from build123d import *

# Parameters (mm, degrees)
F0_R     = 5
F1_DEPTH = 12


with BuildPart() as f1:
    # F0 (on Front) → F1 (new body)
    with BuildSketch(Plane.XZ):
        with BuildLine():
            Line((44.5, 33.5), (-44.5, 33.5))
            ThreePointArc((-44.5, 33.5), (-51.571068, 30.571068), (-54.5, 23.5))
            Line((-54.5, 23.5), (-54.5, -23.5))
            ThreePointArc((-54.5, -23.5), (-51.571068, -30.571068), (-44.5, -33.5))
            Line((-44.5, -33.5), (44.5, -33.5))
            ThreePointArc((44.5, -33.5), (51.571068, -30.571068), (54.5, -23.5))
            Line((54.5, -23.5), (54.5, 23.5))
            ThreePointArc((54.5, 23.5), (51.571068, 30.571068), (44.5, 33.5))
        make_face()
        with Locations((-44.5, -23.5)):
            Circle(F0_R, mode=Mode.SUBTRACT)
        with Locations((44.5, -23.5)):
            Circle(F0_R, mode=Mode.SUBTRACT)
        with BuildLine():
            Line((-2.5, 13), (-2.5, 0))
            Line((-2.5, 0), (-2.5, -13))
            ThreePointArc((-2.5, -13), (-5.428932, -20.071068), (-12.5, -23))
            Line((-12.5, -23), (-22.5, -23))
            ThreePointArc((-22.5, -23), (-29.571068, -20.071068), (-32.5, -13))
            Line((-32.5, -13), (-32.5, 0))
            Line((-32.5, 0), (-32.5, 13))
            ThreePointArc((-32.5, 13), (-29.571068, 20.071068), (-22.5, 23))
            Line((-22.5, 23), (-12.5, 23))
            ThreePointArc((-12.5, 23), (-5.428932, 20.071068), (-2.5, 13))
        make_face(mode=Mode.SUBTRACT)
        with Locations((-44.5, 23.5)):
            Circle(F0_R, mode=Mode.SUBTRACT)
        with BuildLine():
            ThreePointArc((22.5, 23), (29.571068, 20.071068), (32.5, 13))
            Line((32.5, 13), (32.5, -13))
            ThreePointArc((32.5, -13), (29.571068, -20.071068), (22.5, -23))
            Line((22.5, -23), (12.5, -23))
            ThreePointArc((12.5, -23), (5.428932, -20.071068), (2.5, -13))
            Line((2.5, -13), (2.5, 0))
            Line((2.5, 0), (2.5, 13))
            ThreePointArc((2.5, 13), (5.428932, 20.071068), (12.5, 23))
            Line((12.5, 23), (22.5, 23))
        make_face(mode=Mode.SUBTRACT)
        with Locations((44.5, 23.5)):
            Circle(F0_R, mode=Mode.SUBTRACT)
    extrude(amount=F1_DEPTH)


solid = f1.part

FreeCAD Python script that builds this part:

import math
import FreeCAD as App
import Part
import Sketcher
Q = App.Units.Quantity

doc = App.newDocument("Part")
body = doc.addObject("PartDesign::Body", "Body")

sketch1 = body.newObject("Sketcher::SketchObject", "Sketch")
sketch1.AttachmentSupport = (doc.getObject("XZ_Plane"), [""])
sketch1.MapMode = "FlatFace"
sketch1.addGeometry([
    Part.LineSegment(App.Vector(44, 34, 0), App.Vector(-44, 34, 0)),
    Part.ArcOfCircle(Part.Circle(App.Vector(-45, 24, 0), App.Vector(0, 0, 1), 10), math.radians(90), math.radians(180)),
    Part.LineSegment(App.Vector(-54, 24, 0), App.Vector(-54, -24, 0)),
    Part.ArcOfCircle(Part.Circle(App.Vector(-45, -24, 0), App.Vector(0, 0, 1), 10), math.radians(180), math.radians(270)),
    Part.LineSegment(App.Vector(-44, -34, 0), App.Vector(44, -34, 0)),
    Part.ArcOfCircle(Part.Circle(App.Vector(45, -24, 0), App.Vector(0, 0, 1), 10), math.radians(-90), math.radians(0)),
    Part.LineSegment(App.Vector(54, -24, 0), App.Vector(54, 24, 0)),
    Part.ArcOfCircle(Part.Circle(App.Vector(45, 24, 0), App.Vector(0, 0, 1), 10), math.radians(0), math.radians(90)),
    Part.Circle(App.Vector(-44, -24, 0), App.Vector(0, 0, 1), 5),
    Part.Circle(App.Vector(44, -24, 0), App.Vector(0, 0, 1), 5),
    Part.ArcOfCircle(Part.Circle(App.Vector(-12, 13, 0), App.Vector(0, 0, 1), 10), math.radians(0), math.radians(90)),
    Part.LineSegment(App.Vector(-2, 13, 0), App.Vector(-2, -13, 0)),
    Part.ArcOfCircle(Part.Circle(App.Vector(-12, -13, 0), App.Vector(0, 0, 1), 10), math.radians(-90), math.radians(0)),
    Part.LineSegment(App.Vector(-12, -23, 0), App.Vector(-22, -23, 0)),
    Part.ArcOfCircle(Part.Circle(App.Vector(-23, -13, 0), App.Vector(0, 0, 1), 10), math.radians(180), math.radians(270)),
    Part.LineSegment(App.Vector(-32, -13, 0), App.Vector(-32, 13, 0)),
    Part.ArcOfCircle(Part.Circle(App.Vector(-23, 13, 0), App.Vector(0, 0, 1), 10), math.radians(90), math.radians(180)),
    Part.LineSegment(App.Vector(-22, 23, 0), App.Vector(-12, 23, 0)),
    Part.Circle(App.Vector(-44, 24, 0), App.Vector(0, 0, 1), 5),
    Part.LineSegment(App.Vector(12, 23, 0), App.Vector(22, 23, 0)),
    Part.ArcOfCircle(Part.Circle(App.Vector(23, 13, 0), App.Vector(0, 0, 1), 10), math.radians(0), math.radians(90)),
    Part.LineSegment(App.Vector(32, 13, 0), App.Vector(32, -13, 0)),
    Part.ArcOfCircle(Part.Circle(App.Vector(23, -13, 0), App.Vector(0, 0, 1), 10), math.radians(-90), math.radians(0)),
    Part.LineSegment(App.Vector(22, -23, 0), App.Vector(12, -23, 0)),
    Part.ArcOfCircle(Part.Circle(App.Vector(12, -13, 0), App.Vector(0, 0, 1), 10), math.radians(180), math.radians(270)),
    Part.LineSegment(App.Vector(2, -13, 0), App.Vector(2, 13, 0)),
    Part.ArcOfCircle(Part.Circle(App.Vector(12, 13, 0), App.Vector(0, 0, 1), 10), math.radians(90), math.radians(180)),
    Part.Circle(App.Vector(44, 24, 0), App.Vector(0, 0, 1), 5),
], False)
sketch1.addConstraint([
    Sketcher.Constraint("Tangent", 0, 2, 1, 1),
    Sketcher.Constraint("Tangent", 1, 2, 2, 1),
    Sketcher.Constraint("Tangent", 2, 2, 3, 1),
    Sketcher.Constraint("Tangent", 3, 2, 4, 1),
    Sketcher.Constraint("Tangent", 4, 2, 5, 1),
    Sketcher.Constraint("Tangent", 5, 2, 6, 1),
    Sketcher.Constraint("Tangent", 6, 2, 7, 1),
    Sketcher.Constraint("Tangent", 7, 2, 0, 1),
    Sketcher.Constraint("Tangent", 10, 1, 11, 1),
    Sketcher.Constraint("Tangent", 11, 2, 12, 2),
    Sketcher.Constraint("Tangent", 12, 1, 13, 1),
    Sketcher.Constraint("Tangent", 13, 2, 14, 2),
    Sketcher.Constraint("Tangent", 14, 1, 15, 1),
    Sketcher.Constraint("Tangent", 15, 2, 16, 2),
    Sketcher.Constraint("Tangent", 16, 1, 17, 1),
    Sketcher.Constraint("Tangent", 17, 2, 10, 2),
    Sketcher.Constraint("Tangent", 19, 2, 20, 2),
    Sketcher.Constraint("Tangent", 20, 1, 21, 1),
    Sketcher.Constraint("Tangent", 21, 2, 22, 2),
    Sketcher.Constraint("Tangent", 22, 1, 23, 1),
    Sketcher.Constraint("Tangent", 23, 2, 24, 2),
    Sketcher.Constraint("Tangent", 24, 1, 25, 1),
    Sketcher.Constraint("Tangent", 25, 2, 26, 2),
    Sketcher.Constraint("Tangent", 26, 1, 19, 1),
    Sketcher.Constraint("Horizontal", 0),
    Sketcher.Constraint("Vertical", 2),
    Sketcher.Constraint("Horizontal", 4),
    Sketcher.Constraint("Vertical", 6),
    Sketcher.Constraint("Vertical", 11),
    Sketcher.Constraint("Horizontal", 13),
    Sketcher.Constraint("Vertical", 15),
    Sketcher.Constraint("Horizontal", 17),
    Sketcher.Constraint("Horizontal", 19),
    Sketcher.Constraint("Vertical", 21),
    Sketcher.Constraint("Horizontal", 23),
    Sketcher.Constraint("Vertical", 25),
    Sketcher.Constraint("Coincident", 8, 3, 3, 3),
    Sketcher.Constraint("Coincident", 9, 3, 5, 3),
    Sketcher.Constraint("Coincident", 18, 3, 1, 3),
    Sketcher.Constraint("Coincident", 27, 3, 7, 3),
    Sketcher.Constraint("Equal", 1, 3),
    Sketcher.Constraint("Equal", 3, 5),
    Sketcher.Constraint("Equal", 5, 7),
    Sketcher.Constraint("Equal", 8, 9),
    Sketcher.Constraint("Equal", 7, 10),
    Sketcher.Constraint("Equal", 10, 12),
    Sketcher.Constraint("Equal", 12, 14),
    Sketcher.Constraint("Equal", 14, 16),
    Sketcher.Constraint("Equal", 9, 18),
    Sketcher.Constraint("Equal", 16, 20),
    Sketcher.Constraint("Equal", 20, 22),
    Sketcher.Constraint("Equal", 22, 24),
    Sketcher.Constraint("Equal", 24, 26),
    Sketcher.Constraint("Equal", 18, 27),
    Sketcher.Constraint("Symmetric", 1, 3, 5, 3, -1, 1),
    Sketcher.Constraint("Symmetric", 14, 3, 20, 3, -1, 1),
    Sketcher.Constraint("Symmetric", 10, 3, 24, 3, -1, 1),
    Sketcher.Constraint("Horizontal", 16, 3, 20, 3),
    Sketcher.Constraint("Diameter", 8, Q("10 mm")),
    Sketcher.Constraint("Radius", 1, Q("9.999999 mm")),
    Sketcher.Constraint("DistanceX", 0, 2, 0, 1, Q("89 mm")),
    Sketcher.Constraint("DistanceX", 13, 2, 13, 1, Q("10 mm")),
    Sketcher.Constraint("DistanceY", 2, 2, 2, 1, Q("47 mm")),
    Sketcher.Constraint("DistanceY", 11, 2, 11, 1, Q("26 mm")),
    Sketcher.Constraint("DistanceX", 1, 3, 10, 3, Q("32.000001 mm")),
])
pad1 = body.newObject("PartDesign::Pad", "Pad")
pad1.Profile = sketch1
pad1.Length = 12

doc.recompute()
